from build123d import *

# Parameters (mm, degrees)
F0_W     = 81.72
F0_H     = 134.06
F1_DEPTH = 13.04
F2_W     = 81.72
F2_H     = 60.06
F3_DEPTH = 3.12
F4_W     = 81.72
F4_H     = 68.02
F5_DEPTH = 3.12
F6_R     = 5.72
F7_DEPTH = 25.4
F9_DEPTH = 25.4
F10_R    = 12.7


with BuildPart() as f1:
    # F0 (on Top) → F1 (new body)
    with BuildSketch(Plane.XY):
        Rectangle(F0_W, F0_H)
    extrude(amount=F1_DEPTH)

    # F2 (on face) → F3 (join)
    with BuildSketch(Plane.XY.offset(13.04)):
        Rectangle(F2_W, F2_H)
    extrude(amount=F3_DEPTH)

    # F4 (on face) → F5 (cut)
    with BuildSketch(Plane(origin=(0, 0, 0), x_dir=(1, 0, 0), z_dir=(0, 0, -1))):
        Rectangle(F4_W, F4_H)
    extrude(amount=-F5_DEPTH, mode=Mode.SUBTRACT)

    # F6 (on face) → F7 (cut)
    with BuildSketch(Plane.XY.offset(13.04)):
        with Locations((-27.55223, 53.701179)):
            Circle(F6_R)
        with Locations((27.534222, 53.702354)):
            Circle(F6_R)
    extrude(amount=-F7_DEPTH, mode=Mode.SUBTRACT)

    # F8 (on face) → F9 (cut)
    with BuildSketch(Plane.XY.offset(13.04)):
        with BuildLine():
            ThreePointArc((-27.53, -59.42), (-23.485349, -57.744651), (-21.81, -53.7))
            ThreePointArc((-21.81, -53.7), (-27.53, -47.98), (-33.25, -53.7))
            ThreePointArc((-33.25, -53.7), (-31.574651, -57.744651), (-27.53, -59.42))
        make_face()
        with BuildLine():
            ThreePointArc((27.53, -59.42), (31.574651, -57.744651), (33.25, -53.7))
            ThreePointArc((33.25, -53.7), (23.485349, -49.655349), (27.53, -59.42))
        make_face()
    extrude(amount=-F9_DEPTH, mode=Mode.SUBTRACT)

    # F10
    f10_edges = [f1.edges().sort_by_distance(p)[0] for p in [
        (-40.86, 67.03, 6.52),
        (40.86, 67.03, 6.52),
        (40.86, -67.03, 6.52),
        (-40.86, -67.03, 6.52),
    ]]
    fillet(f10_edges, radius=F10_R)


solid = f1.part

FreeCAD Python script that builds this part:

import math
import FreeCAD as App
import Part
import Sketcher

V = App.Vector
Q = App.Units.Quantity


def edges_at(feature, points):
    """Names of the edges that pass closest to the given points."""
    edges = feature.Shape.Edges
    near = lambda p: min(range(len(edges)), key=lambda i: edges[i].distToShape(Part.Vertex(*p))[0])
    return sorted({f"Edge{near(p) + 1}" for p in points})

doc = App.newDocument("Part")
body = doc.addObject("PartDesign::Body", "Body")

sketch1 = doc.addObject("Sketcher::SketchObject", "Sketch")
body.addObject(sketch1)
sketch1.AttachmentSupport = (doc.XY_Plane, [""])
sketch1.MapMode = "FlatFace"
sketch1.addGeometry(Part.LineSegment(V(-41, 67, 0), V(-41, -67, 0)), False)
sketch1.addGeometry(Part.LineSegment(V(-41, -67, 0), V(41, -67, 0)), False)
sketch1.addGeometry(Part.LineSegment(V(41, -67, 0), V(41, 67, 0)), False)
sketch1.addGeometry(Part.LineSegment(V(41, 67, 0), V(-41, 67, 0)), False)
sketch1.addConstraint(Sketcher.Constraint("Coincident", 0, 2, 1, 1))
sketch1.addConstraint(Sketcher.Constraint("Coincident", 1, 2, 2, 1))
sketch1.addConstraint(Sketcher.Constraint("Coincident", 2, 2, 3, 1))
sketch1.addConstraint(Sketcher.Constraint("Coincident", 3, 2, 0, 1))
sketch1.addConstraint(Sketcher.Constraint("Vertical", 0))
sketch1.addConstraint(Sketcher.Constraint("Horizontal", 1))
sketch1.addConstraint(Sketcher.Constraint("Vertical", 2))
sketch1.addConstraint(Sketcher.Constraint("Horizontal", 3))
sketch1.addConstraint(Sketcher.Constraint("Symmetric", 0, 2, 2, 2, -1, 1))
sketch1.addConstraint(Sketcher.Constraint("DistanceX", 1, 1, 1, 2, Q("81.72 mm")))
sketch1.addConstraint(Sketcher.Constraint("DistanceY", 0, 2, 0, 1, Q("134.06 mm")))
pad1 = doc.addObject("PartDesign::Pad", "Pad")
body.addObject(pad1)
pad1.Profile = sketch1
pad1.Length = 13.04

sketch2 = doc.addObject("Sketcher::SketchObject", "Sketch001")
body.addObject(sketch2)
sketch2.AttachmentSupport = (doc.XY_Plane, [""])
sketch2.MapMode = "FlatFace"
sketch2.AttachmentOffset = App.Placement(V(0, 0, 13.04), App.Rotation())
sketch2.addGeometry(Part.LineSegment(V(-41, 30, 0), V(-41, -30, 0)), False)
sketch2.addGeometry(Part.LineSegment(V(-41, -30, 0), V(41, -30, 0)), False)
sketch2.addGeometry(Part.LineSegment(V(41, -30, 0), V(41, 30, 0)), False)
sketch2.addGeometry(Part.LineSegment(V(41, 30, 0), V(-41, 30, 0)), False)
sketch2.addConstraint(Sketcher.Constraint("Coincident", 0, 2, 1, 1))
sketch2.addConstraint(Sketcher.Constraint("Coincident", 1, 2, 2, 1))
sketch2.addConstraint(Sketcher.Constraint("Coincident", 2, 2, 3, 1))
sketch2.addConstraint(Sketcher.Constraint("Coincident", 3, 2, 0, 1))
sketch2.addConstraint(Sketcher.Constraint("Vertical", 0))
sketch2.addConstraint(Sketcher.Constraint("Horizontal", 1))
sketch2.addConstraint(Sketcher.Constraint("Vertical", 2))
sketch2.addConstraint(Sketcher.Constraint("Horizontal", 3))
sketch2.addConstraint(Sketcher.Constraint("Symmetric", 0, 2, 2, 2, -1, 1))
sketch2.addConstraint(Sketcher.Constraint("DistanceX", 1, 1, 1, 2, Q("81.72 mm")))
sketch2.addConstraint(Sketcher.Constraint("DistanceY", 0, 2, 0, 1, Q("60.06 mm")))
pad2 = doc.addObject("PartDesign::Pad", "Pad001")
body.addObject(pad2)
pad2.Profile = sketch2
pad2.Length = 3.12

sketch3 = doc.addObject("Sketcher::SketchObject", "Sketch002")
body.addObject(sketch3)
sketch3.AttachmentSupport = (doc.XY_Plane, [""])
sketch3.MapMode = "FlatFace"
sketch3.addGeometry(Part.LineSegment(V(-41, -34, 0), V(-41, 34, 0)), False)
sketch3.addGeometry(Part.LineSegment(V(-41, 34, 0), V(41, 34, 0)), False)
sketch3.addGeometry(Part.LineSegment(V(41, 34, 0), V(41, -34, 0)), False)
sketch3.addGeometry(Part.LineSegment(V(41, -34, 0), V(-41, -34, 0)), False)
sketch3.addConstraint(Sketcher.Constraint("Coincident", 0, 2, 1, 1))
sketch3.addConstraint(Sketcher.Constraint("Coincident", 1, 2, 2, 1))
sketch3.addConstraint(Sketcher.Constraint("Coincident", 2, 2, 3, 1))
sketch3.addConstraint(Sketcher.Constraint("Coincident", 3, 2, 0, 1))
sketch3.addConstraint(Sketcher.Constraint("Vertical", 0))
sketch3.addConstraint(Sketcher.Constraint("Horizontal", 1))
sketch3.addConstraint(Sketcher.Constraint("Vertical", 2))
sketch3.addConstraint(Sketcher.Constraint("Horizontal", 3))
sketch3.addConstraint(Sketcher.Constraint("Symmetric", 0, 2, 2, 2, -1, 1))
sketch3.addConstraint(Sketcher.Constraint("DistanceX", 1, 1, 1, 2, Q("81.72 mm")))
sketch3.addConstraint(Sketcher.Constraint("DistanceY", 0, 1, 0, 2, Q("68.02 mm")))
pocket1 = doc.addObject("PartDesign::Pocket", "Pocket")
body.addObject(pocket1)
pocket1.Profile = sketch3
pocket1.Length = 3.12
pocket1.Reversed = True

sketch4 = doc.addObject("Sketcher::SketchObject", "Sketch003")
body.addObject(sketch4)
sketch4.AttachmentSupport = (doc.XY_Plane, [""])
sketch4.MapMode = "FlatFace"
sketch4.AttachmentOffset = App.Placement(V(0, 0, 13.04), App.Rotation())
sketch4.addGeometry(Part.Circle(V(-28, 54, 0), V(0, 0, 1), 6), False)
sketch4.addGeometry(Part.Circle(V(28, 54, 0), V(0, 0, 1), 6), False)
sketch4.addConstraint(Sketcher.Constraint("Equal", 0, 1))
sketch4.addConstraint(Sketcher.Constraint("Diameter", 0, Q("11.44 mm")))
sketch4.addConstraint(Sketcher.Constraint("DistanceX", 0, 3, -1, 1, Q("27.55223 mm")))
sketch4.addConstraint(Sketcher.Constraint("DistanceY", -1, 1, 0, 3, Q("53.701179 mm")))
sketch4.addConstraint(Sketcher.Constraint("DistanceX", -1, 1, 1, 3, Q("27.534222 mm")))
sketch4.addConstraint(Sketcher.Constraint("DistanceY", -1, 1, 1, 3, Q("53.702354 mm")))
pocket2 = doc.addObject("PartDesign::Pocket", "Pocket001")
body.addObject(pocket2)
pocket2.Profile = sketch4
pocket2.Length = Q("1 in")

sketch5 = doc.addObject("Sketcher::SketchObject", "Sketch004")
body.addObject(sketch5)
sketch5.AttachmentSupport = (doc.XY_Plane, [""])
sketch5.MapMode = "FlatFace"
sketch5.AttachmentOffset = App.Placement(V(0, 0, 13.04), App.Rotation())
sketch5.addGeometry(Part.ArcOfCircle(Part.Circle(V(-28, -54, 0), V(0, 0, 1), 6), math.radians(-90), math.radians(0)), False)
sketch5.addGeometry(Part.ArcOfCircle(Part.Circle(V(-28, -54, 0), V(0, 0, 1), 6), math.radians(0), math.radians(180)), False)
sketch5.addGeometry(Part.ArcOfCircle(Part.Circle(V(-28, -54, 0), V(0, 0, 1), 6), math.radians(180), math.radians(270)), False)
sketch5.addGeometry(Part.ArcOfCircle(Part.Circle(V(28, -54, 0), V(0, 0, 1), 6), math.radians(-90), math.radians(0)), False)
sketch5.addGeometry(Part.ArcOfCircle(Part.Circle(V(28, -54, 0), V(0, 0, 1), 6), math.radians(0), math.radians(270)), False)
sketch5.addConstraint(Sketcher.Constraint("Tangent", 0, 2, 1, 1))
sketch5.addConstraint(Sketcher.Constraint("Tangent", 1, 2, 2, 1))
sketch5.addConstraint(Sketcher.Constraint("Tangent", 2, 2, 0, 1))
sketch5.addConstraint(Sketcher.Constraint("Tangent", 3, 1, 4, 2))
sketch5.addConstraint(Sketcher.Constraint("Coincident", 4, 1, 3, 2))
sketch5.addConstraint(Sketcher.Constraint("Equal", 2, 3))
sketch5.addConstraint(Sketcher.Constraint("Symmetric", 0, 3, 3, 3, -2))
sketch5.addConstraint(Sketcher.Constraint("Horizontal", 4, 3, 0, 2))
sketch5.addConstraint(Sketcher.Constraint("Horizontal", 0, 2, 1, 2))
sketch5.addConstraint(Sketcher.Constraint("Horizontal", 1, 2, 4, 1))
sketch5.addConstraint(Sketcher.Constraint("Vertical", 1, 3, 2, 2))
sketch5.addConstraint(Sketcher.Constraint("Vertical", 4, 3, 3, 1))
sketch5.addConstraint(Sketcher.Constraint("Radius", 0, Q("5.719999 mm")))
sketch5.addConstraint(Sketcher.Constraint("DistanceX", 0, 3, -1, 1, Q("27.529999 mm")))
sketch5.addConstraint(Sketcher.Constraint("DistanceY", 0, 3, -1, 1, Q("53.700001 mm")))
pocket3 = doc.addObject("PartDesign::Pocket", "Pocket002")
body.addObject(pocket3)
pocket3.Profile = sketch5
pocket3.Length = Q("1 in")
doc.recompute()

fillet = doc.addObject("PartDesign::Fillet", "Fillet")
body.addObject(fillet)
fillet.Base = (pocket3, edges_at(pocket3, [
    (-40.86, 67.03, 6.52),
    (40.86, 67.03, 6.52),
    (40.86, -67.03, 6.52),
    (-40.86, -67.03, 6.52),
]))
fillet.Radius = Q("0.5 in")

doc.recompute()
